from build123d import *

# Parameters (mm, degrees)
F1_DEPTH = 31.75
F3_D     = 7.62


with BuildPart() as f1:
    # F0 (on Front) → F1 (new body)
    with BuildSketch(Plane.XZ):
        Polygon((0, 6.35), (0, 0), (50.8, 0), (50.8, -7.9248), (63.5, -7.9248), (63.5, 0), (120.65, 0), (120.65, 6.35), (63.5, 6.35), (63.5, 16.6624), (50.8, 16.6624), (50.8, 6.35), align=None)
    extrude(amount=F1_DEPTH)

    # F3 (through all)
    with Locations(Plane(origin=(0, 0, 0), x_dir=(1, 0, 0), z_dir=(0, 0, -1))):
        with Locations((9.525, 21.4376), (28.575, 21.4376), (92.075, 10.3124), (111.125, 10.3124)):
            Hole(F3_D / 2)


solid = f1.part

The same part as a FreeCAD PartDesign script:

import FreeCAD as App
import Part
import Sketcher

V = App.Vector
Q = App.Units.Quantity


def add_polygon(sketch, points):
    """Adds a closed chain of lines whose ends are joined by coincident constraints."""
    first, n = sketch.GeometryCount, len(points)
    for a, b in zip(points, points[1:] + points[:1]):
        sketch.addGeometry(Part.LineSegment(App.Vector(*a, 0), App.Vector(*b, 0)), False)
    for i in range(n):
        sketch.addConstraint(Sketcher.Constraint("Coincident", first + i, 2, first + (i + 1) % n, 1))

doc = App.newDocument("Part")
body = doc.addObject("PartDesign::Body", "Body")

# Sketch on XZ plane
sketch1 = body.newObject("Sketcher::SketchObject", "Sketch")
sketch1.AttachmentSupport = (doc.getObject("XZ_Plane"), [""])
sketch1.MapMode = "FlatFace"
add_polygon(sketch1, [(0, 6), (0, 0), (51, 0), (51, -8), (64, -8), (64, 0), (121, 0), (121, 6), (64, 6), (64, 17), (51, 17), (51, 6)])  # lines 0-11
sketch1.addConstraint([
    Sketcher.Constraint("Vertical", 0),
    Sketcher.Constraint("Horizontal", 1),
    Sketcher.Constraint("Vertical", 2),
    Sketcher.Constraint("Horizontal", 3),
    Sketcher.Constraint("Vertical", 4),
    Sketcher.Constraint("Horizontal", 5),
    Sketcher.Constraint("Vertical", 6),
    Sketcher.Constraint("Horizontal", 7),
    Sketcher.Constraint("Vertical", 8),
    Sketcher.Constraint("Horizontal", 9),
    Sketcher.Constraint("Vertical", 10),
    Sketcher.Constraint("Horizontal", 11),
    Sketcher.Constraint("Coincident", 0, 2, -1, 1),
    Sketcher.Constraint("PointOnObject", 4, 2, -1),
    Sketcher.Constraint("Horizontal", 7, 2, 10, 2),
    Sketcher.Constraint("Vertical", 4, 2, 7, 2),
    Sketcher.Constraint("Vertical", 2, 2, 9, 2),
    Sketcher.Constraint("DistanceX", 1, 1, 1, 2, Q("2 in")),
    Sketcher.Constraint("DistanceX", 3, 1, 3, 2, Q("0.5 in")),
    Sketcher.Constraint("DistanceX", 5, 1, 5, 2, Q("2.25 in")),
    Sketcher.Constraint("DistanceY", 0, 2, 0, 1, Q("0.25 in")),
    Sketcher.Constraint("DistanceY", 2, 2, 2, 1, Q("0.312 in")),
    Sketcher.Constraint("DistanceY", 8, 1, 8, 2, Q("0.406 in")),
])
pad1 = body.newObject("PartDesign::Pad", "Pad")
pad1.Profile = sketch1
pad1.Length = Q("1.25 in")

# Sketch on XY plane
sketch2 = body.newObject("Sketcher::SketchObject", "Sketch001")
sketch2.AttachmentSupport = (doc.getObject("XY_Plane"), [""])
sketch2.MapMode = "FlatFace"
sketch2.addGeometry([
    Part.Circle(V(9.5, -21.4, 0), V(0, 0, 1), 3.8),
    Part.Circle(V(28.6, -21.4, 0), V(0, 0, 1), 3.8),
    Part.Circle(V(92.1, -10.3, 0), V(0, 0, 1), 3.8),
    Part.Circle(V(111.1, -10.3, 0), V(0, 0, 1), 3.8),
], False)
sketch2.addConstraint([
    Sketcher.Constraint("Equal", 0, 1),
    Sketcher.Constraint("Equal", 1, 2),
    Sketcher.Constraint("Equal", 2, 3),
    Sketcher.Constraint("Horizontal", 0, 3, 1, 3),
    Sketcher.Constraint("Horizontal", 2, 3, 3, 3),
    Sketcher.Constraint("Diameter", 0, Q("0.3 in")),
    Sketcher.Constraint("DistanceX", 0, 3, 3, 3, Q("4 in")),
    Sketcher.Constraint("DistanceX", 1, 3, 2, 3, Q("2.5 in")),
    Sketcher.Constraint("DistanceX", 0, 3, 1, 3, Q("0.75 in")),
    Sketcher.Constraint("DistanceX", -1, 1, 0, 3, Q("0.375 in")),
    Sketcher.Constraint("DistanceY", 0, 3, -1, 1, Q("0.844 in")),
    Sketcher.Constraint("DistanceY", 2, 3, -1, 1, Q("0.406 in")),
])
doc.recompute()
hole = body.newObject("PartDesign::Hole", "Hole")
hole.Profile = sketch2
hole.ThreadType = "None"
hole.Diameter = Q("0.3 in")
hole.DepthType = "ThroughAll"
hole.Reversed = True

doc.recompute()
